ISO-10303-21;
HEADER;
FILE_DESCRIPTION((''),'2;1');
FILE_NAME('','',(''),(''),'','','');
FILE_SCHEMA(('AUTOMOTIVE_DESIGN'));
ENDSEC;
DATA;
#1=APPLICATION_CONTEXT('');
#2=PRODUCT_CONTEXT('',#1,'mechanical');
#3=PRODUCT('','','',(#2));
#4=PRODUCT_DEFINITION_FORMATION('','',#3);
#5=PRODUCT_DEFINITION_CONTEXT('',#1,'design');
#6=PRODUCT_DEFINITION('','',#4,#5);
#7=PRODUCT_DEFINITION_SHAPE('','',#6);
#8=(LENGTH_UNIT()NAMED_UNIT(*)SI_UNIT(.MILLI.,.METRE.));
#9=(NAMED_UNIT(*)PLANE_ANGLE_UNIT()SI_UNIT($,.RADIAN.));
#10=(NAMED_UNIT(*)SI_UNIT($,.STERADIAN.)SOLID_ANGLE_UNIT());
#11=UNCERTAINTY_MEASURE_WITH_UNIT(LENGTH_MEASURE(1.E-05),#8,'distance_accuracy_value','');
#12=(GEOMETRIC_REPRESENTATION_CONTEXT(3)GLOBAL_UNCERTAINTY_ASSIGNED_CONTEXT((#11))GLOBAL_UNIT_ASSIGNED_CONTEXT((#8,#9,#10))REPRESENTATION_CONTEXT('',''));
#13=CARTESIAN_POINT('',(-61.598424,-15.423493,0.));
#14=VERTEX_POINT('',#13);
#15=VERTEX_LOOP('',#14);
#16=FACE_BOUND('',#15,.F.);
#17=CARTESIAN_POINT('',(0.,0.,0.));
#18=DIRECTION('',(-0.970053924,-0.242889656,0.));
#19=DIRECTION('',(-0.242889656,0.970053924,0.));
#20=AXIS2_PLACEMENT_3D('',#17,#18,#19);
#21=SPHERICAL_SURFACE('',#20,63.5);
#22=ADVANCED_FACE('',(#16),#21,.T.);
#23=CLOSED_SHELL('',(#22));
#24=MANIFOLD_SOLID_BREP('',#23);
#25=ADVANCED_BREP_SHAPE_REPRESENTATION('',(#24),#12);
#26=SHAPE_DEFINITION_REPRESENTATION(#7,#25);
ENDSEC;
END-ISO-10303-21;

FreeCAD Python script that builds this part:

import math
import FreeCAD as App
import Part
import Sketcher

V = App.Vector
Q = App.Units.Quantity

doc = App.newDocument("Part")
body = doc.addObject("PartDesign::Body", "Body")

sketch1 = body.newObject("Sketcher::SketchObject", "Sketch")
sketch1.AttachmentSupport = (doc.getObject("XY_Plane"), [""])
sketch1.MapMode = "FlatFace"
sketch1.addGeometry([
    Part.ArcOfCircle(Part.Circle(V(0, 0, 0), V(0, 0, 1), 64), math.radians(14), math.radians(194)),
    Part.LineSegment(V(-62, -15, 0), V(62, 15, 0)),
], False)
sketch1.addGeometry(Part.LineSegment(V(-62, -15, 0), V(62, 15, 0)), True)
sketch1.addConstraint([
    Sketcher.Constraint("Coincident", 0, 1, 1, 2),
    Sketcher.Constraint("Coincident", 1, 1, 0, 2),
    Sketcher.Constraint("Coincident", 0, 3, -1, 1),
    Sketcher.Constraint("Coincident", 2, 1, 1, 1),
    Sketcher.Constraint("Coincident", 2, 2, 0, 1),
    Sketcher.Constraint("Radius", 0, Q("2.5 in")),
    Sketcher.Constraint("DistanceX", 1, 1, 0, 1, Q("123.196848 mm")),
    Sketcher.Constraint("DistanceX", -1, 1, 0, 1, Q("61.598424 mm")),
])
revolution = body.newObject("PartDesign::Revolution", "Revolution")
revolution.Profile = sketch1
revolution.ReferenceAxis = (sketch1, ["Axis0"])
revolution.Angle = 360

doc.recompute()
